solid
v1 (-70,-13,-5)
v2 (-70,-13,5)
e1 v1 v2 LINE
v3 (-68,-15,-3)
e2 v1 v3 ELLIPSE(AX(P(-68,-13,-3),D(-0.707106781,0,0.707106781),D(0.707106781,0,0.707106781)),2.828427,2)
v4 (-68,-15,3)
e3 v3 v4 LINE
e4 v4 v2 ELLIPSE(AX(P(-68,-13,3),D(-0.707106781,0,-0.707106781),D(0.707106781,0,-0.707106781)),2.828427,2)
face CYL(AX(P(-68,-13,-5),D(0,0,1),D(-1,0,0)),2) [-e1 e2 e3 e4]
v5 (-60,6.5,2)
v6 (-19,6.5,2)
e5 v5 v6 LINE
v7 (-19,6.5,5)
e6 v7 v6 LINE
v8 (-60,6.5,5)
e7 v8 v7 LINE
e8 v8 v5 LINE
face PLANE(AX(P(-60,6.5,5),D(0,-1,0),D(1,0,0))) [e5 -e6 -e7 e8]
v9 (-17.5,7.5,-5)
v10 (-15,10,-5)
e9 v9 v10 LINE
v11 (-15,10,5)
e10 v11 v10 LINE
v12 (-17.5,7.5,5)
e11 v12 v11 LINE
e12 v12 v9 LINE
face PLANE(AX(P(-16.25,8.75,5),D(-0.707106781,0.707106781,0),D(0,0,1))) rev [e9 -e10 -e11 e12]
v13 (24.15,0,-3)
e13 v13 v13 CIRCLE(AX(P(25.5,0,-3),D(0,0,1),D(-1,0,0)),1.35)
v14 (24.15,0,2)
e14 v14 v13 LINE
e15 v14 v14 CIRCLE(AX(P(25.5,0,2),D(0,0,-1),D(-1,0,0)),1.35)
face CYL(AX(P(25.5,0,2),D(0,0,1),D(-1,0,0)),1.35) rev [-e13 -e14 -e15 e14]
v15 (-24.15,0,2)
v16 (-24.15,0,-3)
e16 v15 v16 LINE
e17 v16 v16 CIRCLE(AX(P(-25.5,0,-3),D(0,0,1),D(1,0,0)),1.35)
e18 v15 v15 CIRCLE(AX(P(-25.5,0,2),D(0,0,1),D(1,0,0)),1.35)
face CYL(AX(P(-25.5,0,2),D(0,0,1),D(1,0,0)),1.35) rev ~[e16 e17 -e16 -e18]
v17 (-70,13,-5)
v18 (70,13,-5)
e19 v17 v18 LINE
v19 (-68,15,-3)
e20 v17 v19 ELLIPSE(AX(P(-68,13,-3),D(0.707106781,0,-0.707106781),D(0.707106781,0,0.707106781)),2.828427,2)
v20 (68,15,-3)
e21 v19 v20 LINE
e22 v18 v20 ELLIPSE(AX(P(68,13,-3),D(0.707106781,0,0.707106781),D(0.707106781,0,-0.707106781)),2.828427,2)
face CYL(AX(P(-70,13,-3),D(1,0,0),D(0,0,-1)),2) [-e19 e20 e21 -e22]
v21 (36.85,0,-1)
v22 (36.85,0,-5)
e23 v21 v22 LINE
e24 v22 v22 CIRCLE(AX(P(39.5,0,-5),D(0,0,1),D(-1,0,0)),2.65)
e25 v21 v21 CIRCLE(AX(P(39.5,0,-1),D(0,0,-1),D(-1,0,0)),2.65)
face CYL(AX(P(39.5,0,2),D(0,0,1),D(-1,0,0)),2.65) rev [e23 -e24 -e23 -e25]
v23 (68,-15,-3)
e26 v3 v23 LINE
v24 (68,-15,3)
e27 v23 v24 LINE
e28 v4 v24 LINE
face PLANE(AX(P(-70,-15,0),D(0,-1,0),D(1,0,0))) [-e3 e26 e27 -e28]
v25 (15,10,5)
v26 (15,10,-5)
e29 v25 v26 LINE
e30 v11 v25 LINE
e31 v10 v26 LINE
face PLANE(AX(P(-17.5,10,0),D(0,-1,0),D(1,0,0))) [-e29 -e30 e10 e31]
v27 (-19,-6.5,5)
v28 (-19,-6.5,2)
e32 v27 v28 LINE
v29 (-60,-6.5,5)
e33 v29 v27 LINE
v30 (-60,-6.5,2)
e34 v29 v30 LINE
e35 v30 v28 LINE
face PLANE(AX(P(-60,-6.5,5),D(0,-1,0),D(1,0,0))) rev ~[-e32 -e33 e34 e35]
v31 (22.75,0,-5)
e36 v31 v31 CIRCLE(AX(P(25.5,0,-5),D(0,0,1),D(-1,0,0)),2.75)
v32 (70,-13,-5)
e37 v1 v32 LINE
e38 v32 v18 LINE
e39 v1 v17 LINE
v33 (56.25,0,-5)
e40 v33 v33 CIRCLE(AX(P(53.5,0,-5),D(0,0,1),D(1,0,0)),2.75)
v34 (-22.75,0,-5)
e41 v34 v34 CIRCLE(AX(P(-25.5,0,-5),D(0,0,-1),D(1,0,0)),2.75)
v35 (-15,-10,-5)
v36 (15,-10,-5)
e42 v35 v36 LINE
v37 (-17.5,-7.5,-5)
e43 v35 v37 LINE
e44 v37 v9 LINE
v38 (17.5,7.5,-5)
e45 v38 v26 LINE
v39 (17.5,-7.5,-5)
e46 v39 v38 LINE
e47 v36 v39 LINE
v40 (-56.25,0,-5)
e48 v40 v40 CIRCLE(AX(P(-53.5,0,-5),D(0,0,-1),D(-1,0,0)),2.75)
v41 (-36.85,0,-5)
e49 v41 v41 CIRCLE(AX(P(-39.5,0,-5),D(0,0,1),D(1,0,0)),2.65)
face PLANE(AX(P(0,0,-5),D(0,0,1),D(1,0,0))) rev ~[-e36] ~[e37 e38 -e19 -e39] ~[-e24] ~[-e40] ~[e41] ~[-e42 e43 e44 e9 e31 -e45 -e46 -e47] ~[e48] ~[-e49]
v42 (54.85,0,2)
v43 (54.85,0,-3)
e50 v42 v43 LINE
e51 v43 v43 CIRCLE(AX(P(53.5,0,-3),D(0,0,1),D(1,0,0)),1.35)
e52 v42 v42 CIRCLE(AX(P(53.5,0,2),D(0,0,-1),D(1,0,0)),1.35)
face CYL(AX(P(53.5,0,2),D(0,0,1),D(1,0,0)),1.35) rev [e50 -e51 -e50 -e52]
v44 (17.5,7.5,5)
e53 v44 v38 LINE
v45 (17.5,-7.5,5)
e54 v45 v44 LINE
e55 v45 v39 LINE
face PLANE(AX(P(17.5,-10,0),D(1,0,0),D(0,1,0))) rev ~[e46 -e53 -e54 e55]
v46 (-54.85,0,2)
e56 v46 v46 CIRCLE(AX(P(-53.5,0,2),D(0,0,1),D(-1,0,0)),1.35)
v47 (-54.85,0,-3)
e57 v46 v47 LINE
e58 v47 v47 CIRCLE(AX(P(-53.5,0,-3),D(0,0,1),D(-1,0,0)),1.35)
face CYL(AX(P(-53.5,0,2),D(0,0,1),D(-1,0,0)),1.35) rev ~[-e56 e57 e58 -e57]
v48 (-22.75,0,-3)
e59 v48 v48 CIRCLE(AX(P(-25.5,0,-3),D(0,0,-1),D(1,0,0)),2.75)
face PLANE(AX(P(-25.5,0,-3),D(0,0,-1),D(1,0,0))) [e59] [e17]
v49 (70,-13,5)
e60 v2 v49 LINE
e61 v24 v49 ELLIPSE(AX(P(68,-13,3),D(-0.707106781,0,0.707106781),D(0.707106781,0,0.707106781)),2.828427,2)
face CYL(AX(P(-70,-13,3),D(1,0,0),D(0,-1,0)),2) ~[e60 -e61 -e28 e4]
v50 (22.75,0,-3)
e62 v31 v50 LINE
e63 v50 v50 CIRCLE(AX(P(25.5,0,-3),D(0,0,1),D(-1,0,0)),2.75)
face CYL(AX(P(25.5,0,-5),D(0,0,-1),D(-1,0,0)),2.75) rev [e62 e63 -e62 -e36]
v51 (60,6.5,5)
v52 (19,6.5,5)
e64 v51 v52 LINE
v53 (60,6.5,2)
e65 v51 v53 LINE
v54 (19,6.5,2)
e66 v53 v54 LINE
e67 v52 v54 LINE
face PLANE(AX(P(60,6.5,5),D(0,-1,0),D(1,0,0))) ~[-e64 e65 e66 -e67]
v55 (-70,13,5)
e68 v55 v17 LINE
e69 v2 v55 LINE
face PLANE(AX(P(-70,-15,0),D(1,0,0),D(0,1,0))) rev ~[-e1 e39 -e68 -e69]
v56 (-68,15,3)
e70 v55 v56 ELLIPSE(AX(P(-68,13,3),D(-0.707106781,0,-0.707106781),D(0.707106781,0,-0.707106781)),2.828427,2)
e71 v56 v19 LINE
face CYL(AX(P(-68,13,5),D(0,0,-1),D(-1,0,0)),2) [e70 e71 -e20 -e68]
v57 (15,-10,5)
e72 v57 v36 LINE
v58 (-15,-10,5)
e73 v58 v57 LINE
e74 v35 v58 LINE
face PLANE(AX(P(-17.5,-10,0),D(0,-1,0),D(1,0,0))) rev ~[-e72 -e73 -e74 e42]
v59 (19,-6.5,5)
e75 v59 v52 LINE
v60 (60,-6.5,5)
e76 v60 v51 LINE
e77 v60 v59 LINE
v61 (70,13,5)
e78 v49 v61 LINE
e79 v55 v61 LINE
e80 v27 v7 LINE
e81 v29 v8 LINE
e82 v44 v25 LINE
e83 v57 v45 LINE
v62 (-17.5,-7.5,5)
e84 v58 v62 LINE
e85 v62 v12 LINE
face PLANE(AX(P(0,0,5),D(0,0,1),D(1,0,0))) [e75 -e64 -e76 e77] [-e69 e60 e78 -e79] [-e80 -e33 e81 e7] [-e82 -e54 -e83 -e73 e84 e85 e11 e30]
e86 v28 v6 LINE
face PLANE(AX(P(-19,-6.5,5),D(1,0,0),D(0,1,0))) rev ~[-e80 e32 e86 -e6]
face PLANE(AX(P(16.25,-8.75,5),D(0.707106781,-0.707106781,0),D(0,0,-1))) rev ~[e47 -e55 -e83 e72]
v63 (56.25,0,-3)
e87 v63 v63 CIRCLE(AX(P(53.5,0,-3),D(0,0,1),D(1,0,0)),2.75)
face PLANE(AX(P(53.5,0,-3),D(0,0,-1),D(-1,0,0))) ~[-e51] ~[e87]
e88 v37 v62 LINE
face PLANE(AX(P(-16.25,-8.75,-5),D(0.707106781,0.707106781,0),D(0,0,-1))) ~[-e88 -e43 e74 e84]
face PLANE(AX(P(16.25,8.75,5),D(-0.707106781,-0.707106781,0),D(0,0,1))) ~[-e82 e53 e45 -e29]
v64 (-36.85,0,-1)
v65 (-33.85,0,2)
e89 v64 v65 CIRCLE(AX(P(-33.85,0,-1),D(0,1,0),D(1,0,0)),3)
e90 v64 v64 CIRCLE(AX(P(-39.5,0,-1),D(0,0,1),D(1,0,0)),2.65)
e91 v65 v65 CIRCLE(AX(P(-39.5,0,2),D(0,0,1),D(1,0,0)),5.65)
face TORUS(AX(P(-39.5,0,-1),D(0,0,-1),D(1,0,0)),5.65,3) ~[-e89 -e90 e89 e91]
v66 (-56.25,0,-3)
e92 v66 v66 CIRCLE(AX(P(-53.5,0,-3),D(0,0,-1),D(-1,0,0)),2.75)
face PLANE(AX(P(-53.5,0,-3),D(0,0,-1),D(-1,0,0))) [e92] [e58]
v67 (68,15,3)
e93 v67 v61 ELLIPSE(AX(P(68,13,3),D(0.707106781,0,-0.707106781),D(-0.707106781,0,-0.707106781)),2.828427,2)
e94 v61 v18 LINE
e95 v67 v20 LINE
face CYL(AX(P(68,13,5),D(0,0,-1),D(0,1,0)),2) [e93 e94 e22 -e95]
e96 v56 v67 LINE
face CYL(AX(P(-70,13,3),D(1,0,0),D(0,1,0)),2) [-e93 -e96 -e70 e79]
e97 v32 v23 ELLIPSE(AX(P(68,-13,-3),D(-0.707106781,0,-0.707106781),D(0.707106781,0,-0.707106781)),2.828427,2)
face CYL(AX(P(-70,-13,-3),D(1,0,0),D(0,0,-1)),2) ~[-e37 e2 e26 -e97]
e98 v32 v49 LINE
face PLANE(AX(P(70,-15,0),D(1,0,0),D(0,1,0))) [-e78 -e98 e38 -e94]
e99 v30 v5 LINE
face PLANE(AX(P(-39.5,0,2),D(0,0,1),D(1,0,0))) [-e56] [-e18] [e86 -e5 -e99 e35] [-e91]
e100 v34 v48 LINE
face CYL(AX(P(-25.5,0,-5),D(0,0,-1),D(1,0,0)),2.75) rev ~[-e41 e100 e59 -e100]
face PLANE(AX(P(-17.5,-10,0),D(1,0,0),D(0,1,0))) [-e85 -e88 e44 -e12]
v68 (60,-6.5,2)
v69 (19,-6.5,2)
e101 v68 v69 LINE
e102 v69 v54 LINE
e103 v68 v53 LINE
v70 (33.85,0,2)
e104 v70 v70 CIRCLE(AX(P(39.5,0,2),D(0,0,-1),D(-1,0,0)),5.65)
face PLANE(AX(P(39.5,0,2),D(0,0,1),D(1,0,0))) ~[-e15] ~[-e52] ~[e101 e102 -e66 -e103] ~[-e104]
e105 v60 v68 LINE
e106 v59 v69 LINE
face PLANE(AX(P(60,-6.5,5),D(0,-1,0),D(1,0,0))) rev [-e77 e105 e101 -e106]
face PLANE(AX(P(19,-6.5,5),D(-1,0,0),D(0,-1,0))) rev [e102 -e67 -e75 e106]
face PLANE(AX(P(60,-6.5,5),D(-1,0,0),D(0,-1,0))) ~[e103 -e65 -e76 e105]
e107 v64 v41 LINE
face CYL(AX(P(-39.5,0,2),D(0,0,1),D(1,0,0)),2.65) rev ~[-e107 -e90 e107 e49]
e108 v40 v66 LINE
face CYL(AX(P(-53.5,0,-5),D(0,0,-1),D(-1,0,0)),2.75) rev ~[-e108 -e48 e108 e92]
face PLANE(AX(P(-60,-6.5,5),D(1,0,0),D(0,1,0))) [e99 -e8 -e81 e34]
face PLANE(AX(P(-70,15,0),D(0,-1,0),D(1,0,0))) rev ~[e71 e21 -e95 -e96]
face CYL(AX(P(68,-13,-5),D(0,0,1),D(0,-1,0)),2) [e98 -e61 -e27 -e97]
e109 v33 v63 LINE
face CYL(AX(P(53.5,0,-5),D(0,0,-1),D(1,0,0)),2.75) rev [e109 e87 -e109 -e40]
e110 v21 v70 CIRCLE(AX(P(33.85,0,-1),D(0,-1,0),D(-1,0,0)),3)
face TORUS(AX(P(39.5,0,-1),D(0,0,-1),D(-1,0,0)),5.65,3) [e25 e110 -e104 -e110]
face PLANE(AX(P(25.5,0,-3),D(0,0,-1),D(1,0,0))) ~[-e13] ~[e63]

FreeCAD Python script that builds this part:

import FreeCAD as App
import Part
import Sketcher
from FreeCAD import Vector


def edges_at(feature, points):
    """Names of the edges that pass closest to the given points."""
    edges = feature.Shape.Edges
    near = lambda p: min(range(len(edges)), key=lambda i: edges[i].distToShape(Part.Vertex(*p))[0])
    return sorted({f"Edge{near(p) + 1}" for p in points})

doc = App.newDocument("Part")
body = doc.addObject("PartDesign::Body", "Body")

# Sketch on XY plane
sketch1 = doc.addObject("Sketcher::SketchObject", "Sketch")
body.addObject(sketch1)
sketch1.AttachmentSupport = (doc.XY_Plane, [""])
sketch1.MapMode = "FlatFace"
sketch1.addGeometry(Part.LineSegment(Vector(-70, 15, 0), Vector(-70, -15, 0)), False)
sketch1.addGeometry(Part.LineSegment(Vector(-70, -15, 0), Vector(70, -15, 0)), False)
sketch1.addGeometry(Part.LineSegment(Vector(70, -15, 0), Vector(70, 15, 0)), False)
sketch1.addGeometry(Part.LineSegment(Vector(70, 15, 0), Vector(-70, 15, 0)), False)
sketch1.addGeometry(Part.LineSegment(Vector(18, -10, 0), Vector(-18, -10, 0)), False)
sketch1.addGeometry(Part.LineSegment(Vector(-18, -10, 0), Vector(-18, 10, 0)), False)
sketch1.addGeometry(Part.LineSegment(Vector(-18, 10, 0), Vector(18, 10, 0)), False)
sketch1.addGeometry(Part.LineSegment(Vector(18, 10, 0), Vector(18, -10, 0)), False)
sketch1.addConstraint(Sketcher.Constraint("Coincident", 0, 2, 1, 1))
sketch1.addConstraint(Sketcher.Constraint("Coincident", 1, 2, 2, 1))
sketch1.addConstraint(Sketcher.Constraint("Coincident", 2, 2, 3, 1))
sketch1.addConstraint(Sketcher.Constraint("Coincident", 3, 2, 0, 1))
sketch1.addConstraint(Sketcher.Constraint("Coincident", 4, 2, 5, 1))
sketch1.addConstraint(Sketcher.Constraint("Coincident", 5, 2, 6, 1))
sketch1.addConstraint(Sketcher.Constraint("Coincident", 6, 2, 7, 1))
sketch1.addConstraint(Sketcher.Constraint("Coincident", 7, 2, 4, 1))
sketch1.addConstraint(Sketcher.Constraint("Vertical", 0))
sketch1.addConstraint(Sketcher.Constraint("Horizontal", 1))
sketch1.addConstraint(Sketcher.Constraint("Vertical", 2))
sketch1.addConstraint(Sketcher.Constraint("Horizontal", 3))
sketch1.addConstraint(Sketcher.Constraint("Horizontal", 4))
sketch1.addConstraint(Sketcher.Constraint("Vertical", 5))
sketch1.addConstraint(Sketcher.Constraint("Horizontal", 6))
sketch1.addConstraint(Sketcher.Constraint("Vertical", 7))
sketch1.addConstraint(Sketcher.Constraint("Symmetric", 0, 2, 2, 2, -1, 1))
sketch1.addConstraint(Sketcher.Constraint("Symmetric", 4, 2, 6, 2, -1, 1))
sketch1.addConstraint(Sketcher.Constraint("DistanceX", 1, 1, 1, 2, 140.0))
sketch1.addConstraint(Sketcher.Constraint("DistanceX", 4, 2, 4, 1, 35.0))
sketch1.addConstraint(Sketcher.Constraint("DistanceY", 0, 2, 0, 1, 30.0))
sketch1.addConstraint(Sketcher.Constraint("DistanceY", 5, 1, 5, 2, 20.0))
pad1 = doc.addObject("PartDesign::Pad", "Pad")
body.addObject(pad1)
pad1.Profile = sketch1
pad1.Length = 10
pad1.Midplane = True

# Sketch on XY plane
sketch2 = doc.addObject("Sketcher::SketchObject", "Sketch001")
body.addObject(sketch2)
sketch2.AttachmentSupport = (doc.XY_Plane, [""])
sketch2.MapMode = "FlatFace"
sketch2.AttachmentOffset = App.Placement(Vector(0, 0, 5), App.Rotation())
sketch2.addGeometry(Part.LineSegment(Vector(-60, 6, 0), Vector(-60, -6, 0)), False)
sketch2.addGeometry(Part.LineSegment(Vector(-60, -6, 0), Vector(-19, -6, 0)), False)
sketch2.addGeometry(Part.LineSegment(Vector(-19, -6, 0), Vector(-19, 6, 0)), False)
sketch2.addGeometry(Part.LineSegment(Vector(-19, 6, 0), Vector(-60, 6, 0)), False)
sketch2.addConstraint(Sketcher.Constraint("Coincident", 0, 2, 1, 1))
sketch2.addConstraint(Sketcher.Constraint("Coincident", 1, 2, 2, 1))
sketch2.addConstraint(Sketcher.Constraint("Coincident", 2, 2, 3, 1))
sketch2.addConstraint(Sketcher.Constraint("Coincident", 3, 2, 0, 1))
sketch2.addConstraint(Sketcher.Constraint("Vertical", 0))
sketch2.addConstraint(Sketcher.Constraint("Horizontal", 1))
sketch2.addConstraint(Sketcher.Constraint("Vertical", 2))
sketch2.addConstraint(Sketcher.Constraint("Horizontal", 3))
sketch2.addConstraint(Sketcher.Constraint("DistanceX", 1, 1, 1, 2, 41.0))
sketch2.addConstraint(Sketcher.Constraint("DistanceY", 0, 2, 0, 1, 13.0))
sketch2.addConstraint(Sketcher.Constraint("DistanceX", 0, 2, -1, 1, 60.0))
sketch2.addConstraint(Sketcher.Constraint("DistanceY", 0, 2, -1, 1, 6.5))
pocket1 = doc.addObject("PartDesign::Pocket", "Pocket")
body.addObject(pocket1)
pocket1.Profile = sketch2
pocket1.Length = 3

# Sketch on XY plane
sketch3 = doc.addObject("Sketcher::SketchObject", "Sketch002")
body.addObject(sketch3)
sketch3.AttachmentSupport = (doc.XY_Plane, [""])
sketch3.MapMode = "FlatFace"
sketch3.AttachmentOffset = App.Placement(Vector(0, 0, 2), App.Rotation())
sketch3.addGeometry(Part.Circle(Vector(-39.5, 0, 0), Vector(0, 0, 1), 2.6), False)
sketch3.addGeometry(Part.Circle(Vector(-25.5, 0, 0), Vector(0, 0, 1), 1.4), False)
sketch3.addGeometry(Part.Circle(Vector(-53.5, 0, 0), Vector(0, 0, 1), 1.4), False)
sketch3.addConstraint(Sketcher.Constraint("Equal", 1, 2))
sketch3.addConstraint(Sketcher.Constraint("PointOnObject", 0, 3, -1))
sketch3.addConstraint(Sketcher.Constraint("PointOnObject", 1, 3, -1))
sketch3.addConstraint(Sketcher.Constraint("PointOnObject", 2, 3, -1))
sketch3.addConstraint(Sketcher.Constraint("Diameter", 0, 5.3))
sketch3.addConstraint(Sketcher.Constraint("Diameter", 1, 2.7))
sketch3.addConstraint(Sketcher.Constraint("DistanceX", 0, 3, 1, 3, 14.0))
sketch3.addConstraint(Sketcher.Constraint("DistanceX", 2, 3, 0, 3, 14.0))
sketch3.addConstraint(Sketcher.Constraint("DistanceX", 0, 3, -1, 1, 39.5))
pocket2 = doc.addObject("PartDesign::Pocket", "Pocket001")
body.addObject(pocket2)
pocket2.Profile = sketch3
pocket2.Type = "ThroughAll"

# Sketch on XY plane
sketch4 = doc.addObject("Sketcher::SketchObject", "Sketch003")
body.addObject(sketch4)
sketch4.AttachmentSupport = (doc.XY_Plane, [""])
sketch4.MapMode = "FlatFace"
sketch4.AttachmentOffset = App.Placement(Vector(0, 0, -5), App.Rotation())
sketch4.addGeometry(Part.Circle(Vector(-53.5, 0, 0), Vector(0, 0, 1), 2.8), False)
sketch4.addGeometry(Part.Circle(Vector(-25.5, 0, 0), Vector(0, 0, 1), 2.8), False)
sketch4.addConstraint(Sketcher.Constraint("Equal", 0, 1))
sketch4.addConstraint(Sketcher.Constraint("PointOnObject", 0, 3, -1))
sketch4.addConstraint(Sketcher.Constraint("PointOnObject", 1, 3, -1))
sketch4.addConstraint(Sketcher.Constraint("Diameter", 0, 5.5))
sketch4.addConstraint(Sketcher.Constraint("DistanceX", 0, 3, 1, 3, 28.0))
sketch4.addConstraint(Sketcher.Constraint("DistanceX", 0, 3, -1, 1, 53.5))
pocket3 = doc.addObject("PartDesign::Pocket", "Pocket002")
body.addObject(pocket3)
pocket3.Profile = sketch4
pocket3.Length = 2
pocket3.Reversed = True
doc.recompute()

fillet = doc.addObject("PartDesign::Fillet", "Fillet")
body.addObject(fillet)
fillet.Base = (pocket3, edges_at(pocket3, [(-42.15, 0, 2)]))
fillet.Radius = 3
doc.recompute()

mirrored = doc.addObject("PartDesign::Mirrored", "Mirrored")
body.addObject(mirrored)
mirrored.Originals = [pocket1, pocket2, pocket3]
mirrored.MirrorPlane = (doc.YZ_Plane, [""])
body.Tip = mirrored
doc.recompute()

fillet2 = doc.addObject("PartDesign::Fillet", "Fillet001")
body.addObject(fillet2)
fillet2.Base = (mirrored, edges_at(mirrored, [(42.15, 0, 2)]))
fillet2.Radius = 3
doc.recompute()

fillet3 = doc.addObject("PartDesign::Fillet", "Fillet002")
body.addObject(fillet3)
fillet3.Base = (fillet2, edges_at(fillet2, [
    (0, -15, 5),
    (0, -15, -5),
    (0, 15, -5),
    (70, -15, 0),
    (-70, -15, 0),
    (-70, 15, 0),
    (70, 15, 0),
    (0, 15, 5),
]))
fillet3.Radius = 2
doc.recompute()

chamfer = doc.addObject("PartDesign::Chamfer", "Chamfer")
body.addObject(chamfer)
chamfer.Base = (fillet3, edges_at(fillet3, [
    (17.5, -10, 0),
    (17.5, 10, 0),
    (-17.5, 10, 0),
    (-17.5, -10, 0),
]))
chamfer.Size = 2.5

doc.recompute()
